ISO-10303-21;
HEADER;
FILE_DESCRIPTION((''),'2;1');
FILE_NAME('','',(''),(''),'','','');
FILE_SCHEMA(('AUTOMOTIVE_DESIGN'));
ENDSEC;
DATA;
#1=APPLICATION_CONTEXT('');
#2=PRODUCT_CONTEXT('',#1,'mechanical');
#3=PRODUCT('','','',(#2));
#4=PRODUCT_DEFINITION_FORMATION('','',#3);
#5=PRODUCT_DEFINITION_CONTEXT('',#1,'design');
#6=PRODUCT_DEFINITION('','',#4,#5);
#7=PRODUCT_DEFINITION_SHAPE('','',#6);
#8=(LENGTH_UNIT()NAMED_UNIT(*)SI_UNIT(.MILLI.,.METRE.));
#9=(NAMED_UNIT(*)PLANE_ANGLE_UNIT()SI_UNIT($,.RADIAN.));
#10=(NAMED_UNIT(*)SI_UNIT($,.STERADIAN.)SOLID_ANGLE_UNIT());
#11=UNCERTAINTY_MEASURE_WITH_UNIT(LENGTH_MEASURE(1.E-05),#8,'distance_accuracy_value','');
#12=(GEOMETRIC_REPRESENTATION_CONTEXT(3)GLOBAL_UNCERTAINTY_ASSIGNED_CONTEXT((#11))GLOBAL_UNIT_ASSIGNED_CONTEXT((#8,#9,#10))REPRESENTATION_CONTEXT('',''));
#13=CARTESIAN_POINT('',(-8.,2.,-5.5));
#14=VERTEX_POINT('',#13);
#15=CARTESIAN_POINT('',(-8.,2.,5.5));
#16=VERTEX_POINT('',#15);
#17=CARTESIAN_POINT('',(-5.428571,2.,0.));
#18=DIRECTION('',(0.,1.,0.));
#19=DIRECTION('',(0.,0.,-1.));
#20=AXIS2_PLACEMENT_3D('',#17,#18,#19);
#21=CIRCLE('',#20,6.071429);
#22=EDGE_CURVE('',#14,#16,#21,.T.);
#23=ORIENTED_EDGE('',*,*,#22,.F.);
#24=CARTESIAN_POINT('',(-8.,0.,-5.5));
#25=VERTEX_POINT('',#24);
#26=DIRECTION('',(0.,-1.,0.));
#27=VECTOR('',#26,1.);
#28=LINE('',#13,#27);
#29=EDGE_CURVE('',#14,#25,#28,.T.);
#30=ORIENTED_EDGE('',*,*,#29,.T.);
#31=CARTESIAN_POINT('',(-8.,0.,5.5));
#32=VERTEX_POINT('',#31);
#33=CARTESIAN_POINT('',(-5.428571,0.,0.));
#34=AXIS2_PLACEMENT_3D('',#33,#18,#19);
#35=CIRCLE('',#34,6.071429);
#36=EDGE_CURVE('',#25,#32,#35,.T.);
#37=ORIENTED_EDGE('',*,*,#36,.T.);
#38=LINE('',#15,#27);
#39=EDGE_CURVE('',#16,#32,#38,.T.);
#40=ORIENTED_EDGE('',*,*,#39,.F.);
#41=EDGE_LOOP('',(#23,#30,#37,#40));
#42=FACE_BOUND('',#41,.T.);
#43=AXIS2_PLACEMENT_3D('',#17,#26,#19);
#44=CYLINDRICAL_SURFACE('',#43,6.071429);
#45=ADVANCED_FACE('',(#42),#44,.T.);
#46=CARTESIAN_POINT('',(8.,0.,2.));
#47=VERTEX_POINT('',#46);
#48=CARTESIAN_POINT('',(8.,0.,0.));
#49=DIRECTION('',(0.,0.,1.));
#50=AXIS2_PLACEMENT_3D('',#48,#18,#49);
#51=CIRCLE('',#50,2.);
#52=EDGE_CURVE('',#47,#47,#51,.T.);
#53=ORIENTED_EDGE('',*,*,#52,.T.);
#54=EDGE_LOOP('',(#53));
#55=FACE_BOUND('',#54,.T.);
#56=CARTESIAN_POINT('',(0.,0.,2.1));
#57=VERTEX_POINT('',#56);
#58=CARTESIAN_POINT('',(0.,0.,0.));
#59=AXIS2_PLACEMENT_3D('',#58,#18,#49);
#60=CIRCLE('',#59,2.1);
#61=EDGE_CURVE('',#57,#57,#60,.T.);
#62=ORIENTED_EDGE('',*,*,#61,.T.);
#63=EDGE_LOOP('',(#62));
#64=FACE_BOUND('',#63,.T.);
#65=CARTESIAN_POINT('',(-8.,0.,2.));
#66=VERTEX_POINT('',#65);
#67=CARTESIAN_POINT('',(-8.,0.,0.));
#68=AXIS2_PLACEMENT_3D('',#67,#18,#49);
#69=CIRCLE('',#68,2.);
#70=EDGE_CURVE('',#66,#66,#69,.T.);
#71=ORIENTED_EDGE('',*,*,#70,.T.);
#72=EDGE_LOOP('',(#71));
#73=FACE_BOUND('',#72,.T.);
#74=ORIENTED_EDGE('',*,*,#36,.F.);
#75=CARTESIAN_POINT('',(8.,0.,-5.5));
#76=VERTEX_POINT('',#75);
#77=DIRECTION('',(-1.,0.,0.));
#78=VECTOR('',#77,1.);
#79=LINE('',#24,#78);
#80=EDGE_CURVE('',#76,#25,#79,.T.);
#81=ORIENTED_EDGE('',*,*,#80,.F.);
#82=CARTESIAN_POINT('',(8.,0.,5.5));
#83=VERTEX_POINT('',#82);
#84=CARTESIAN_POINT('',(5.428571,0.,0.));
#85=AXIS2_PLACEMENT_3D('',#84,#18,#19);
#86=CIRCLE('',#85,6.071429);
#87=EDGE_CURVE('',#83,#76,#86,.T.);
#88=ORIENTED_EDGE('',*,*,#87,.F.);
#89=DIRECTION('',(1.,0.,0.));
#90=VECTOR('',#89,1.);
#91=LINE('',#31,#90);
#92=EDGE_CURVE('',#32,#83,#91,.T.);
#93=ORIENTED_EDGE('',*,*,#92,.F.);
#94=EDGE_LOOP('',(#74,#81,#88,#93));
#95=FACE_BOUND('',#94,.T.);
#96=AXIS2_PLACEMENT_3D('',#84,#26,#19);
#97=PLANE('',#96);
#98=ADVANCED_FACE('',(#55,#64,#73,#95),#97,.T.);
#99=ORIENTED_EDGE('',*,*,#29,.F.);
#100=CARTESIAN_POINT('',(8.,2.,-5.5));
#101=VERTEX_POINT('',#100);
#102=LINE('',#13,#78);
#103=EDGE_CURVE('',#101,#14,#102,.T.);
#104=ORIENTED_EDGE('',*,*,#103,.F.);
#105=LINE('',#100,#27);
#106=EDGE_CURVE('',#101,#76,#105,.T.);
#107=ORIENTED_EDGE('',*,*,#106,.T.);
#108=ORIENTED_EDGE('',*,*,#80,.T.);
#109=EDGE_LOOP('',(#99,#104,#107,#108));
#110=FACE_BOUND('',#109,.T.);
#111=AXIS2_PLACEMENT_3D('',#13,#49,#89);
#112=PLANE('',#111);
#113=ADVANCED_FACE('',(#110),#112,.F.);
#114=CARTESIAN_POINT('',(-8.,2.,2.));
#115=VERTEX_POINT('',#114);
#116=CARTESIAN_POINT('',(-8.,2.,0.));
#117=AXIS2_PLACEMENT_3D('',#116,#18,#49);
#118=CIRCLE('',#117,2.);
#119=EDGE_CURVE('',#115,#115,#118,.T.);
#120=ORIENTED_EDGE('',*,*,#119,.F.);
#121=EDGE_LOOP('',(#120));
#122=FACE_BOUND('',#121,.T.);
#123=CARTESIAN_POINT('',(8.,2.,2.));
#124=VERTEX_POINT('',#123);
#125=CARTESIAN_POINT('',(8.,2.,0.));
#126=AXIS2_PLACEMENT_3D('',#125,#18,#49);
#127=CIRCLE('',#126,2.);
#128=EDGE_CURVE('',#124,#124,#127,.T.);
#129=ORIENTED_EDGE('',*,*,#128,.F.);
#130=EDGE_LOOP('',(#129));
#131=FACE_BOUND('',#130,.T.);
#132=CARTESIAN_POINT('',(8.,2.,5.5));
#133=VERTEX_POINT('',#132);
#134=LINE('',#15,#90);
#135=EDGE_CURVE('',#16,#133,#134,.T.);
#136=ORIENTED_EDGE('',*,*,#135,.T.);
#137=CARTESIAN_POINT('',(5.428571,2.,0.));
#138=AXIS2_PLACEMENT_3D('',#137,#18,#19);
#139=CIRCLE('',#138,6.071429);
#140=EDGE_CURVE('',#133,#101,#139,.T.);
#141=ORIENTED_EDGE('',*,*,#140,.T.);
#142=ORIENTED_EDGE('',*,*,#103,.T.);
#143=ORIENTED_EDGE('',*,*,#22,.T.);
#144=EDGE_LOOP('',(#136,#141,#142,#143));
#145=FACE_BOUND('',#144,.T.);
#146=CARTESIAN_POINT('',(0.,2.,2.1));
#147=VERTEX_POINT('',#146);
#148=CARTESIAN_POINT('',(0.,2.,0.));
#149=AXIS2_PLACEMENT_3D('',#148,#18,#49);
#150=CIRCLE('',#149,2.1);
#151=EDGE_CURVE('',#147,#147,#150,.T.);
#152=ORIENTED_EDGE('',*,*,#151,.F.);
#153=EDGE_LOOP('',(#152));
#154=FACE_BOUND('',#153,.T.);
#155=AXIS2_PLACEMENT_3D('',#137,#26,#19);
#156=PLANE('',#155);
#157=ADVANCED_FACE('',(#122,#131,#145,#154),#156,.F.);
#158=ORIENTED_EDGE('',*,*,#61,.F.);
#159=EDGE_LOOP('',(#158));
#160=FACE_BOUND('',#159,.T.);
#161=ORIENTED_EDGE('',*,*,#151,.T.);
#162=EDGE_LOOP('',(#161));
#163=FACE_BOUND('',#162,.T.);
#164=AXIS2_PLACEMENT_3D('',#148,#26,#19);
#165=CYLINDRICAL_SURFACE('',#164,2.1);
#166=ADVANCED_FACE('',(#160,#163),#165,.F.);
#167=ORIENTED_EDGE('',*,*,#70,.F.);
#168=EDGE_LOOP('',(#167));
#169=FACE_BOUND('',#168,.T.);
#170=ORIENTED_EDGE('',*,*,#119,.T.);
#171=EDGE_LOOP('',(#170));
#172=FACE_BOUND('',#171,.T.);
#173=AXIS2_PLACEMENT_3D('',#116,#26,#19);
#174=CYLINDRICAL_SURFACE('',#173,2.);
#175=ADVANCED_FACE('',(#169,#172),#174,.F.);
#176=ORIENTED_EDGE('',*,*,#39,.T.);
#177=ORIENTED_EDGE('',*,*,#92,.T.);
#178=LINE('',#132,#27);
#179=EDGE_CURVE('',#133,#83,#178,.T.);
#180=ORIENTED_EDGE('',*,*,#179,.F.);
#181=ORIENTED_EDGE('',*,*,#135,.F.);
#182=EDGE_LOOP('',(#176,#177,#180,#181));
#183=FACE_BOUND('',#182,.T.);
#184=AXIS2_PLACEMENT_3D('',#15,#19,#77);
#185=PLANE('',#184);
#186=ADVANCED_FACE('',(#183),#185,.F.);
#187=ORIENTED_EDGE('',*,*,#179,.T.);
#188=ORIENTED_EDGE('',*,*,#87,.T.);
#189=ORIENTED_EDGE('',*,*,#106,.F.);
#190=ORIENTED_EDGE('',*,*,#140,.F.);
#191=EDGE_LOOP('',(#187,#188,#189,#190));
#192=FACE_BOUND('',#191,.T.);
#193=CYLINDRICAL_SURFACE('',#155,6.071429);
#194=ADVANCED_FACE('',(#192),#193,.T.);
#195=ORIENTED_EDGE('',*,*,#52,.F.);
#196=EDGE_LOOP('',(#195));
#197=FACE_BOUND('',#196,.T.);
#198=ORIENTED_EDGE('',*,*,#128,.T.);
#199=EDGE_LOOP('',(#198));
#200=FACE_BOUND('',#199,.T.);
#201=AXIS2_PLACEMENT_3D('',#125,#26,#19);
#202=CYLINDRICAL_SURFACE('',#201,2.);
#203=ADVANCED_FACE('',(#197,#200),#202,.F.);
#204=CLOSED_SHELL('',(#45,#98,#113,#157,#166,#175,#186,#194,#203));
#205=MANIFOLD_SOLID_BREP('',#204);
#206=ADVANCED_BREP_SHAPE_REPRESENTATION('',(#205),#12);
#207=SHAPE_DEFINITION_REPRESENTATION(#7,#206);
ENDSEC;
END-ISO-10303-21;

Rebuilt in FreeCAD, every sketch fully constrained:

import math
import FreeCAD as App
import Part
import Sketcher

V = App.Vector
Q = App.Units.Quantity

doc = App.newDocument("Part")
params = doc.addObject("Spreadsheet::Sheet", "Params")
for row, (alias, value) in enumerate([
    ("sketch1_diameter", "4 mm"),
    ("sketch1_diameter2", "4.2 mm"),
    ("sketch1_width", "16 mm"),
    ("pad1_length", "2 mm"),
], start=1):
    params.set(f"A{row}", alias)
    params.set(f"B{row}", "=" + value)
    params.setAlias(f"B{row}", alias)

body = doc.addObject("PartDesign::Body", "Body")

sketch1 = body.newObject("Sketcher::SketchObject", "Sketch")
sketch1.AttachmentSupport = (doc.getObject("XZ_Plane"), [""])
sketch1.MapMode = "FlatFace"
sketch1.addGeometry([
    Part.LineSegment(V(8, -5.5, 0), V(-8, -5.5, 0)),
    Part.ArcOfCircle(Part.Circle(V(-5.4, 0, 0), V(0, 0, 1), 6.1), math.radians(115), math.radians(245)),
    Part.LineSegment(V(-8, 5.5, 0), V(8, 5.5, 0)),
    Part.ArcOfCircle(Part.Circle(V(5.4, 0, 0), V(0, 0, 1), 6.1), math.radians(-65), math.radians(65)),
    Part.Circle(V(8, 0, 0), V(0, 0, 1), 2),
    Part.Circle(V(0, 0, 0), V(0, 0, 1), 2.1),
    Part.Circle(V(-8, 0, 0), V(0, 0, 1), 2),
], False)
sketch1.addConstraint([
    Sketcher.Constraint("Coincident", 0, 2, 1, 2),
    Sketcher.Constraint("Coincident", 1, 1, 2, 1),
    Sketcher.Constraint("Coincident", 2, 2, 3, 2),
    Sketcher.Constraint("Coincident", 3, 1, 0, 1),
    Sketcher.Constraint("Horizontal", 0),
    Sketcher.Constraint("Horizontal", 2),
    Sketcher.Constraint("Coincident", 5, 3, -1, 1),
    Sketcher.Constraint("Equal", 1, 3),
    Sketcher.Constraint("Equal", 4, 6),
    Sketcher.Constraint("Symmetric", 1, 3, 3, 3, -1, 1),
    Sketcher.Constraint("Symmetric", 4, 3, 6, 3, -1, 1),
    Sketcher.Constraint("Symmetric", 0, 2, 1, 1, -1),
    Sketcher.Constraint("PointOnObject", 4, 3, -1),
    Sketcher.Constraint("Vertical", 6, 3, 0, 2),
    Sketcher.Constraint("Diameter", 4, Q("4 mm")),
    Sketcher.Constraint("Diameter", 5, Q("4.2 mm")),
    Sketcher.Constraint("DistanceX", 0, 2, 0, 1, Q("16 mm")),
    Sketcher.Constraint("DistanceY", 0, 2, 1, 1, Q("11 mm")),
    Sketcher.Constraint("Radius", 1, Q("6.071429 mm")),
])
sketch1.setExpression("Constraints[14]", "Params.sketch1_diameter")
sketch1.setExpression("Constraints[15]", "Params.sketch1_diameter2")
sketch1.setExpression("Constraints[16]", "Params.sketch1_width")
pad1 = body.newObject("PartDesign::Pad", "Pad")
pad1.Profile = sketch1
pad1.setExpression("Length", "Params.pad1_length")
pad1.Reversed = True

doc.recompute()
